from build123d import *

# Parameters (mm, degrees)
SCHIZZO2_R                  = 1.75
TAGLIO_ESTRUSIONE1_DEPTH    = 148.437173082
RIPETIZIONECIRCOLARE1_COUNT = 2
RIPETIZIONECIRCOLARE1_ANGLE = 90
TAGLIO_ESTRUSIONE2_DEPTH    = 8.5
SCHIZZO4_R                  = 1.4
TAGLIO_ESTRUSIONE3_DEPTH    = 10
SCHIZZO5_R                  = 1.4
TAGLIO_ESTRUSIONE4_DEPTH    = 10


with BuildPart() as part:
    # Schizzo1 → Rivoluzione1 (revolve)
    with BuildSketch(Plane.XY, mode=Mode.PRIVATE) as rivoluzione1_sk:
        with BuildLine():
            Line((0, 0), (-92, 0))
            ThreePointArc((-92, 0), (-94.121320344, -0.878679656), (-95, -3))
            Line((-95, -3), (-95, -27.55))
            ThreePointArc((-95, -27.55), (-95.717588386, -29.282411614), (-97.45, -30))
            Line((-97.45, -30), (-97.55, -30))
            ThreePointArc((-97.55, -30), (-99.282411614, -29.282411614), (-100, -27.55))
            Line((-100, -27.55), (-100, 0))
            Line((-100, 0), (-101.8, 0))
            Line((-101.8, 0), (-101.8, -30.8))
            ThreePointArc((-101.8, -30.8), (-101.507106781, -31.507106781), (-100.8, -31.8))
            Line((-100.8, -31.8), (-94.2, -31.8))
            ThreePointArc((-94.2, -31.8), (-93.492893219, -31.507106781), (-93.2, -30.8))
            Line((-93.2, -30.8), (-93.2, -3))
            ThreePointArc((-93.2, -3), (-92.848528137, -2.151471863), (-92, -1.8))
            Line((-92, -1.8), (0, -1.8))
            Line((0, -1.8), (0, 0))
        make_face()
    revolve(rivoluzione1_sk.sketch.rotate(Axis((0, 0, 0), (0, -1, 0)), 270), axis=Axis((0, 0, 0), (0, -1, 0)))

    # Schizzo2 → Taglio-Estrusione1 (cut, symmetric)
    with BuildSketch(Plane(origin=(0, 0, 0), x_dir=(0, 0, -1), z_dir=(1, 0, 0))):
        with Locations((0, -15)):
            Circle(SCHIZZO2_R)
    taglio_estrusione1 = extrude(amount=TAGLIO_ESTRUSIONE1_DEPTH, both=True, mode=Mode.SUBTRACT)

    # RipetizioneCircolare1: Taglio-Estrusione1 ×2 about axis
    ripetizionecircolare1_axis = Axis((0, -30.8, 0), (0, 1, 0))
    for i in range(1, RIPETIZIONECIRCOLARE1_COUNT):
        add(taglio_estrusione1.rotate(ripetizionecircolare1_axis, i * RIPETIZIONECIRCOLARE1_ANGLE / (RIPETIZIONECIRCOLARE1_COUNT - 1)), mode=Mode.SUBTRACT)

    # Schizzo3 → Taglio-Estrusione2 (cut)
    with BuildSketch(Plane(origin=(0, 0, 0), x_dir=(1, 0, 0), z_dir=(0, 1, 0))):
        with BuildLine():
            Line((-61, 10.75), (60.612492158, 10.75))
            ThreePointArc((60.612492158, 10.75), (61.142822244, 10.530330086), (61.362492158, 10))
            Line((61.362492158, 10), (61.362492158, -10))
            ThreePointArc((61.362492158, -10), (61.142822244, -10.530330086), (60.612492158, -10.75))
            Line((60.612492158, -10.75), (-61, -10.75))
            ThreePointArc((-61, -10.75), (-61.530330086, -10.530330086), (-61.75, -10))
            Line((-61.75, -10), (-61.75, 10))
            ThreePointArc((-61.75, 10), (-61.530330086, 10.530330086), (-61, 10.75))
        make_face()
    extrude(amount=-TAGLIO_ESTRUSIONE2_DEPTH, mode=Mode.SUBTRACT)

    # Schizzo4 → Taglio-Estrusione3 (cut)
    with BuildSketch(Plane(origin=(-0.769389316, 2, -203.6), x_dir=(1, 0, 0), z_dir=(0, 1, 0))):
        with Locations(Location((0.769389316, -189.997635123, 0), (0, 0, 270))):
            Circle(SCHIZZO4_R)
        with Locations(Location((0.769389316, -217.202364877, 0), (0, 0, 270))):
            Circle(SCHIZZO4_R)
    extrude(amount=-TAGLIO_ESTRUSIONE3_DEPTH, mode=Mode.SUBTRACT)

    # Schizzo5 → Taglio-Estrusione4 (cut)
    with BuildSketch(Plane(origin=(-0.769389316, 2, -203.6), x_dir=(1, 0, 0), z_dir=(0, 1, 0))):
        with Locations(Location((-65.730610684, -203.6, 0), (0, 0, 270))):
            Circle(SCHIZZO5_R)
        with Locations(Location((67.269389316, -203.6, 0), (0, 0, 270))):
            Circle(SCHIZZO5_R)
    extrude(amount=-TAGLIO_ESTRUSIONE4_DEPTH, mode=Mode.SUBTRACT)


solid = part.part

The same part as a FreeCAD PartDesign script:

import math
import FreeCAD as App
import Part
import Sketcher
from FreeCAD import Vector

doc = App.newDocument("Part")
body = doc.addObject("PartDesign::Body", "Body")

sketch1 = body.newObject("Sketcher::SketchObject", "Sketch")
sketch1.AttachmentSupport = (doc.getObject("XY_Plane"), [""])
sketch1.MapMode = "FlatFace"
sketch1.addGeometry([
    Part.LineSegment(Vector(0, 0, 0), Vector(-92, 0, 0)),
    Part.ArcOfCircle(Part.Circle(Vector(-92, -3, 0), Vector(0, 0, 1), 3), math.radians(90), math.radians(180)),
    Part.LineSegment(Vector(-95, -3, 0), Vector(-95, -27.55, 0)),
    Part.ArcOfCircle(Part.Circle(Vector(-97.45, -27.55, 0), Vector(0, 0, 1), 2.45), math.radians(-90), math.radians(0)),
    Part.LineSegment(Vector(-97.45, -30, 0), Vector(-97.55, -30, 0)),
    Part.ArcOfCircle(Part.Circle(Vector(-97.55, -27.55, 0), Vector(0, 0, 1), 2.45), math.radians(180), math.radians(270)),
    Part.LineSegment(Vector(-100, -27.55, 0), Vector(-100, 0, 0)),
    Part.LineSegment(Vector(-100, 0, 0), Vector(-101.8, 0, 0)),
    Part.LineSegment(Vector(-101.8, 0, 0), Vector(-101.8, -30.8, 0)),
    Part.ArcOfCircle(Part.Circle(Vector(-100.8, -30.8, 0), Vector(0, 0, 1), 1), math.radians(-180), math.radians(-90)),
    Part.LineSegment(Vector(-100.8, -31.8, 0), Vector(-94.2, -31.8, 0)),
    Part.ArcOfCircle(Part.Circle(Vector(-94.2, -30.8, 0), Vector(0, 0, 1), 1), math.radians(-90), math.radians(0)),
    Part.LineSegment(Vector(-93.2, -30.8, 0), Vector(-93.2, -3, 0)),
    Part.ArcOfCircle(Part.Circle(Vector(-92, -3, 0), Vector(0, 0, 1), 1.2), math.radians(90), math.radians(180)),
    Part.LineSegment(Vector(-92, -1.8, 0), Vector(0, -1.8, 0)),
    Part.LineSegment(Vector(0, -1.8, 0), Vector(0, 0, 0)),
], False)
sketch1.addConstraint([
    Sketcher.Constraint("Tangent", 0, 2, 1, 1),
    Sketcher.Constraint("Tangent", 1, 2, 2, 1),
    Sketcher.Constraint("Tangent", 2, 2, 3, 2),
    Sketcher.Constraint("Tangent", 3, 1, 4, 1),
    Sketcher.Constraint("Tangent", 4, 2, 5, 2),
    Sketcher.Constraint("Tangent", 5, 1, 6, 1),
    Sketcher.Constraint("Coincident", 6, 2, 7, 1),
    Sketcher.Constraint("Coincident", 7, 2, 8, 1),
    Sketcher.Constraint("Tangent", 8, 2, 9, 1),
    Sketcher.Constraint("Tangent", 9, 2, 10, 1),
    Sketcher.Constraint("Tangent", 10, 2, 11, 1),
    Sketcher.Constraint("Tangent", 11, 2, 12, 1),
    Sketcher.Constraint("Tangent", 12, 2, 13, 2),
    Sketcher.Constraint("Tangent", 13, 1, 14, 1),
    Sketcher.Constraint("Coincident", 14, 2, 15, 1),
    Sketcher.Constraint("Coincident", 15, 2, 0, 1),
    Sketcher.Constraint("Horizontal", 0),
    Sketcher.Constraint("Vertical", 2),
    Sketcher.Constraint("Horizontal", 4),
    Sketcher.Constraint("Vertical", 6),
    Sketcher.Constraint("Horizontal", 7),
    Sketcher.Constraint("Vertical", 8),
    Sketcher.Constraint("Horizontal", 10),
    Sketcher.Constraint("Vertical", 12),
    Sketcher.Constraint("Horizontal", 14),
    Sketcher.Constraint("Vertical", 15),
    Sketcher.Constraint("Coincident", 15, 2, -1, 1),
    Sketcher.Constraint("Coincident", 13, 3, 1, 3),
    Sketcher.Constraint("Equal", 3, 5),
    Sketcher.Constraint("Equal", 9, 11),
    Sketcher.Constraint("PointOnObject", 6, 2, -1),
    Sketcher.Constraint("Equal", 7, 15),
    Sketcher.Constraint("Radius", 1, 3.0),
    Sketcher.Constraint("Radius", 9, 1.0),
    Sketcher.Constraint("Radius", 13, 1.2),
    Sketcher.Constraint("DistanceX", 0, 2, 0, 1, 92.0),
    Sketcher.Constraint("Radius", 3, 2.45),
    Sketcher.Constraint("DistanceX", 4, 2, 4, 1, 0.1),
    Sketcher.Constraint("DistanceY", 8, 2, 8, 1, 30.8),
    Sketcher.Constraint("DistanceY", 3, 1, -1, 1, 30.0),
])
revolution = body.newObject("PartDesign::Revolution", "Revolution")
revolution.Profile = sketch1
revolution.ReferenceAxis = (sketch1, ["V_Axis"])
revolution.Angle = 360

sketch2 = body.newObject("Sketcher::SketchObject", "Sketch001")
sketch2.AttachmentSupport = (doc.getObject("YZ_Plane"), [""])
sketch2.MapMode = "FlatFace"
sketch2.addGeometry(Part.Circle(Vector(-15, 0, 0), Vector(0, 0, 1), 1.75), False)
sketch2.addConstraint([
    Sketcher.Constraint("PointOnObject", 0, 3, -1),
    Sketcher.Constraint("Diameter", 0, 3.5),
    Sketcher.Constraint("DistanceX", 0, 3, -1, 1, 15.0),
])
pocket1 = body.newObject("PartDesign::Pocket", "Pocket")
pocket1.Profile = sketch2
pocket1.Length = 296.874346
pocket1.Midplane = True
doc.recompute()

polarpattern = body.newObject("PartDesign::PolarPattern", "PolarPattern")
polarpattern.Originals = [pocket1]
polarpattern.Axis = (doc.getObject("Y_Axis"), [""])
polarpattern.Angle = 90
polarpattern.Occurrences = 2
body.Tip = polarpattern

sketch3 = body.newObject("Sketcher::SketchObject", "Sketch002")
sketch3.AttachmentSupport = (doc.getObject("XZ_Plane"), [""])
sketch3.MapMode = "FlatFace"
sketch3.addGeometry([
    Part.LineSegment(Vector(60.612492, -10.75, 0), Vector(-61, -10.75, 0)),
    Part.ArcOfCircle(Part.Circle(Vector(-61, -10, 0), Vector(0, 0, 1), 0.75), math.radians(180), math.radians(270)),
    Part.LineSegment(Vector(-61.75, -10, 0), Vector(-61.75, 10, 0)),
    Part.ArcOfCircle(Part.Circle(Vector(-61, 10, 0), Vector(0, 0, 1), 0.75), math.radians(90), math.radians(180)),
    Part.LineSegment(Vector(-61, 10.75, 0), Vector(60.612492, 10.75, 0)),
    Part.ArcOfCircle(Part.Circle(Vector(60.612492, 10, 0), Vector(0, 0, 1), 0.75), math.radians(0), math.radians(90)),
    Part.LineSegment(Vector(61.362492, 10, 0), Vector(61.362492, -10, 0)),
    Part.ArcOfCircle(Part.Circle(Vector(60.612492, -10, 0), Vector(0, 0, 1), 0.75), math.radians(-90), math.radians(0)),
], False)
sketch3.addConstraint([
    Sketcher.Constraint("Tangent", 0, 2, 1, 2),
    Sketcher.Constraint("Tangent", 1, 1, 2, 1),
    Sketcher.Constraint("Tangent", 2, 2, 3, 2),
    Sketcher.Constraint("Tangent", 3, 1, 4, 1),
    Sketcher.Constraint("Tangent", 4, 2, 5, 2),
    Sketcher.Constraint("Tangent", 5, 1, 6, 1),
    Sketcher.Constraint("Tangent", 6, 2, 7, 2),
    Sketcher.Constraint("Tangent", 7, 1, 0, 1),
    Sketcher.Constraint("Horizontal", 0),
    Sketcher.Constraint("Vertical", 2),
    Sketcher.Constraint("Horizontal", 4),
    Sketcher.Constraint("Vertical", 6),
    Sketcher.Constraint("Equal", 1, 3),
    Sketcher.Constraint("Equal", 3, 5),
    Sketcher.Constraint("Equal", 5, 7),
    Sketcher.Constraint("DistanceY", 2, 1, 2, 2, 20.0),
    Sketcher.Constraint("Radius", 1, 0.75),
    Sketcher.Constraint("DistanceX", 1, 3, -1, 1, 61.0),
    Sketcher.Constraint("DistanceY", 1, 3, -1, 1, 10.0),
    Sketcher.Constraint("DistanceX", 0, 2, 0, 1, 121.612492),
])
pocket2 = body.newObject("PartDesign::Pocket", "Pocket001")
pocket2.Profile = sketch3
pocket2.Length = 8.5
pocket2.Reversed = True

sketch4 = body.newObject("Sketcher::SketchObject", "Sketch003")
sketch4.AttachmentSupport = (doc.getObject("XZ_Plane"), [""])
sketch4.MapMode = "FlatFace"
sketch4.AttachmentOffset = App.Placement(Vector(0, 0, -2), App.Rotation())
sketch4.addGeometry([
    Part.Circle(Vector(0, -13.602365, 0), Vector(0, 0, 1), 1.4),
    Part.Circle(Vector(0, 13.602365, 0), Vector(0, 0, 1), 1.4),
], False)
sketch4.addConstraint([
    Sketcher.Constraint("Equal", 0, 1),
    Sketcher.Constraint("Symmetric", 0, 3, 1, 3, -1, 1),
    Sketcher.Constraint("PointOnObject", 0, 3, -2),
    Sketcher.Constraint("Diameter", 0, 2.8),
    Sketcher.Constraint("DistanceY", 0, 3, 1, 3, 27.20473),
])
pocket3 = body.newObject("PartDesign::Pocket", "Pocket002")
pocket3.Profile = sketch4
pocket3.Length = 10
pocket3.Reversed = True

sketch5 = body.newObject("Sketcher::SketchObject", "Sketch004")
sketch5.AttachmentSupport = (doc.getObject("XZ_Plane"), [""])
sketch5.MapMode = "FlatFace"
sketch5.AttachmentOffset = App.Placement(Vector(0, 0, -2), App.Rotation())
sketch5.addGeometry([
    Part.Circle(Vector(-66.5, 0, 0), Vector(0, 0, 1), 1.4),
    Part.Circle(Vector(66.5, 0, 0), Vector(0, 0, 1), 1.4),
], False)
sketch5.addConstraint([
    Sketcher.Constraint("Equal", 0, 1),
    Sketcher.Constraint("Symmetric", 0, 3, 1, 3, -1, 1),
    Sketcher.Constraint("PointOnObject", 0, 3, -1),
    Sketcher.Constraint("Diameter", 0, 2.8),
    Sketcher.Constraint("DistanceX", 0, 3, 1, 3, 133.0),
])
pocket4 = body.newObject("PartDesign::Pocket", "Pocket003")
pocket4.Profile = sketch5
pocket4.Length = 10
pocket4.Reversed = True

doc.recompute()
